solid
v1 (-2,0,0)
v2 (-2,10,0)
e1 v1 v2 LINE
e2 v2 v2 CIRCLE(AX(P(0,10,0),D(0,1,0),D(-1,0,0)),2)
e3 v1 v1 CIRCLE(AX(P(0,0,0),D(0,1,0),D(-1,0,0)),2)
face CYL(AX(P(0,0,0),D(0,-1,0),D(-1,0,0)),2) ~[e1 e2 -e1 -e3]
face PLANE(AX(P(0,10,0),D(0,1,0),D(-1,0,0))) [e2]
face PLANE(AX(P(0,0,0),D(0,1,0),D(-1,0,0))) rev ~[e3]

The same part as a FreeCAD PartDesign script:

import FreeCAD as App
import Part
import Sketcher

V = App.Vector
Q = App.Units.Quantity

doc = App.newDocument("Part")
params = doc.addObject("Spreadsheet::Sheet", "Params")
for row, (alias, value) in enumerate([
    ("sketch1_diameter", "4 mm"),
    ("pad1_length", "10 mm"),
], start=1):
    params.set(f"A{row}", alias)
    params.set(f"B{row}", "=" + value)
    params.setAlias(f"B{row}", alias)

body = doc.addObject("PartDesign::Body", "Body")

sketch1 = doc.addObject("Sketcher::SketchObject", "Sketch")
body.addObject(sketch1)
sketch1.AttachmentSupport = (doc.XZ_Plane, [""])
sketch1.MapMode = "FlatFace"
sketch1.addGeometry(Part.Circle(V(0, 0, 0), V(0, 0, 1), 2), False)
sketch1.addConstraint(Sketcher.Constraint("Coincident", 0, 3, -1, 1))
sketch1.addConstraint(Sketcher.Constraint("Diameter", 0, Q("4 mm")))
sketch1.setExpression("Constraints[1]", "Params.sketch1_diameter")
pad1 = doc.addObject("PartDesign::Pad", "Pad")
body.addObject(pad1)
pad1.Profile = sketch1
pad1.setExpression("Length", "Params.pad1_length")
pad1.Reversed = True

doc.recompute()
